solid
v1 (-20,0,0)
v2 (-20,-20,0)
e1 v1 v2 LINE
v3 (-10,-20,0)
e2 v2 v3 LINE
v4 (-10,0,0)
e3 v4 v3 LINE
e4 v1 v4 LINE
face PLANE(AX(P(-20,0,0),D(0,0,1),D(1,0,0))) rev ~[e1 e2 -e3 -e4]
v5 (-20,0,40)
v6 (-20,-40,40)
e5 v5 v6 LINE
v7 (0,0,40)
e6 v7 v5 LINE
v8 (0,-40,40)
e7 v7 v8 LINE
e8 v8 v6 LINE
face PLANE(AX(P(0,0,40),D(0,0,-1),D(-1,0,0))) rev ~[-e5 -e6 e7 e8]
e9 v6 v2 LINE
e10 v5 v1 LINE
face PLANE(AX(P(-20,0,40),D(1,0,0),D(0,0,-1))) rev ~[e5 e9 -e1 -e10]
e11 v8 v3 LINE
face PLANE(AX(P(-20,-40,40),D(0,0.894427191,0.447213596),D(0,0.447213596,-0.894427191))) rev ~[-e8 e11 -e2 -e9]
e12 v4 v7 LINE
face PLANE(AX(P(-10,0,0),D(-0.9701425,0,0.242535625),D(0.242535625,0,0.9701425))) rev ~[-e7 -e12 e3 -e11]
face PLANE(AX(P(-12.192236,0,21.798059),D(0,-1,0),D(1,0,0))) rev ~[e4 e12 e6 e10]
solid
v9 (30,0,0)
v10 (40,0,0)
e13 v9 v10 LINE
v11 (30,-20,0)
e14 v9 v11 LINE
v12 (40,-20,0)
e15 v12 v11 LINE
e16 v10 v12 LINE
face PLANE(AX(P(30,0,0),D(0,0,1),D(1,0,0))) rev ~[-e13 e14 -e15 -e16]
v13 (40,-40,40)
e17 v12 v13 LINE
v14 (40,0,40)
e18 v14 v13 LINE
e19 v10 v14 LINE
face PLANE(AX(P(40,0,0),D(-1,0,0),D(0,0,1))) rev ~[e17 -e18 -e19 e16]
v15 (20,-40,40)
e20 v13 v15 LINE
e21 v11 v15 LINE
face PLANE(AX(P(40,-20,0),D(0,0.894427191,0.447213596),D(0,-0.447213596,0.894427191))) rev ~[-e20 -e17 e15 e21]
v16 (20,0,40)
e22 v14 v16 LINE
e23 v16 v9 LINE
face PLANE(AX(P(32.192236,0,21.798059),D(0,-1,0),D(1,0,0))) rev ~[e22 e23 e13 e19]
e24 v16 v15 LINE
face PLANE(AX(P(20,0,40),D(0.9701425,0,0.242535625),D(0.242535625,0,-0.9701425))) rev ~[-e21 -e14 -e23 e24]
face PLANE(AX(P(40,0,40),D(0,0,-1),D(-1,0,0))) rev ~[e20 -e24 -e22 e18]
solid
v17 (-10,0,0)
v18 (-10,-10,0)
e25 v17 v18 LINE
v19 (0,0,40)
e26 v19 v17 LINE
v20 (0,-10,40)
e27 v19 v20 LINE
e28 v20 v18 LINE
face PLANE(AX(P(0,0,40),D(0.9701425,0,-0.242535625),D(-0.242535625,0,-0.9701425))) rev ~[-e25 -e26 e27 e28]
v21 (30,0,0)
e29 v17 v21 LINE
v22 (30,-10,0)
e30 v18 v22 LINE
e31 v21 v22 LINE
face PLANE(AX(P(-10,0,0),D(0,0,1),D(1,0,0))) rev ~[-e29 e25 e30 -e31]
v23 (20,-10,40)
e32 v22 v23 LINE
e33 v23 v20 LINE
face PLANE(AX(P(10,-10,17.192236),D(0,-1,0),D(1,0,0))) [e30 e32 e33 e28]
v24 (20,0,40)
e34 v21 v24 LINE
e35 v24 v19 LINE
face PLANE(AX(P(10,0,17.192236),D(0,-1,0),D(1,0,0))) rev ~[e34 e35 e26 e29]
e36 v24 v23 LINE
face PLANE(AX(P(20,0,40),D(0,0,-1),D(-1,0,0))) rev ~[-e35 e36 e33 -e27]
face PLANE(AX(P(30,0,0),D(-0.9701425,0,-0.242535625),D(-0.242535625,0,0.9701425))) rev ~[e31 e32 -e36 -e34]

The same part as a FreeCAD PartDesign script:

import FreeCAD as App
import Part
import Sketcher

V = App.Vector
Q = App.Units.Quantity


def add_polygon(sketch, points):
    """Adds a closed chain of lines whose ends are joined by coincident constraints."""
    first, n = sketch.GeometryCount, len(points)
    for a, b in zip(points, points[1:] + points[:1]):
        sketch.addGeometry(Part.LineSegment(App.Vector(*a, 0), App.Vector(*b, 0)), False)
    for i in range(n):
        sketch.addConstraint(Sketcher.Constraint("Coincident", first + i, 2, first + (i + 1) % n, 1))

doc = App.newDocument("Part")
params = doc.addObject("Spreadsheet::Sheet", "Params")
for row, (alias, value) in enumerate([
    ("sketch1_width", "10 mm"),
    ("sketch1_width2", "20 mm"),
    ("sketch1_height", "40 mm"),
    ("pad1_length", "40 mm"),
    ("sketch2_width", "20 mm"),
    ("sketch2_height", "40 mm"),
    ("pocket1_length", "25 mm"),
    ("sketch3_width", "10 mm"),
    ("sketch3_width2", "20 mm"),
    ("sketch3_height", "40 mm"),
    ("pad2_length", "40 mm"),
    ("sketch4_width", "20 mm"),
    ("sketch4_height", "40 mm"),
    ("pocket2_length", "25 mm"),
    ("sketch5_width", "40 mm"),
    ("sketch5_width2", "20 mm"),
    ("pad3_length", "10 mm"),
], start=1):
    params.set(f"A{row}", alias)
    params.set(f"B{row}", "=" + value)
    params.setAlias(f"B{row}", alias)

body = doc.addObject("PartDesign::Body", "Body")

# Sketch on XZ plane
sketch1 = body.newObject("Sketcher::SketchObject", "Sketch")
sketch1.AttachmentSupport = (doc.getObject("XZ_Plane"), [""])
sketch1.MapMode = "FlatFace"
add_polygon(sketch1, [(-20, 40), (-20, 0), (-10, 0), (0, 40)])  # lines 0-3
sketch1.addConstraint([
    Sketcher.Constraint("Vertical", 0),
    Sketcher.Constraint("Horizontal", 1),
    Sketcher.Constraint("Horizontal", 3),
    Sketcher.Constraint("PointOnObject", 0, 2, -1),
    Sketcher.Constraint("PointOnObject", 2, 2, -2),
    Sketcher.Constraint("DistanceX", 1, 1, 1, 2, Q("10 mm")),
    Sketcher.Constraint("DistanceX", 3, 2, 3, 1, Q("20 mm")),
    Sketcher.Constraint("DistanceY", 0, 2, 0, 1, Q("40 mm")),
])
sketch1.setExpression("Constraints[9]", "Params.sketch1_width")
sketch1.setExpression("Constraints[10]", "Params.sketch1_width2")
sketch1.setExpression("Constraints[11]", "Params.sketch1_height")
pad1 = body.newObject("PartDesign::Pad", "Pad")
pad1.Profile = sketch1
pad1.setExpression("Length", "Params.pad1_length")

# Sketch on YZ plane
sketch2 = body.newObject("Sketcher::SketchObject", "Sketch001")
sketch2.AttachmentSupport = (doc.getObject("YZ_Plane"), [""])
sketch2.MapMode = "FlatFace"
sketch2.AttachmentOffset = App.Placement(V(0, 0, -20), App.Rotation())
add_polygon(sketch2, [(-40, 40), (-20, 0), (-40, 0)])  # lines 0-2
sketch2.addConstraint([
    Sketcher.Constraint("Horizontal", 1),
    Sketcher.Constraint("Vertical", 2),
    Sketcher.Constraint("PointOnObject", 0, 2, -1),
    Sketcher.Constraint("DistanceX", 1, 2, 1, 1, Q("20 mm")),
    Sketcher.Constraint("DistanceY", 2, 1, 2, 2, Q("40 mm")),
    Sketcher.Constraint("DistanceX", 0, 2, -1, 1, Q("20 mm")),
])
sketch2.setExpression("Constraints[6]", "Params.sketch2_width")
sketch2.setExpression("Constraints[7]", "Params.sketch2_height")
pocket1 = body.newObject("PartDesign::Pocket", "Pocket")
pocket1.Profile = sketch2
pocket1.setExpression("Length", "Params.pocket1_length")
pocket1.Reversed = True
body2 = doc.addObject("PartDesign::Body", "Body001")

# Sketch on XZ plane
sketch3 = body2.newObject("Sketcher::SketchObject", "Sketch002")
sketch3.AttachmentSupport = (doc.getObject("XZ_Plane001"), [""])
sketch3.MapMode = "FlatFace"
add_polygon(sketch3, [(20, 40), (30, 0), (40, 0), (40, 40)])  # lines 0-3
sketch3.addConstraint([
    Sketcher.Constraint("Horizontal", 1),
    Sketcher.Constraint("Vertical", 2),
    Sketcher.Constraint("Horizontal", 3),
    Sketcher.Constraint("PointOnObject", 0, 2, -1),
    Sketcher.Constraint("DistanceX", 1, 1, 1, 2, Q("10 mm")),
    Sketcher.Constraint("DistanceX", 3, 2, 3, 1, Q("20 mm")),
    Sketcher.Constraint("DistanceY", 2, 1, 2, 2, Q("40 mm")),
    Sketcher.Constraint("DistanceX", -1, 1, 0, 2, Q("30 mm")),
])
sketch3.setExpression("Constraints[8]", "Params.sketch3_width")
sketch3.setExpression("Constraints[9]", "Params.sketch3_width2")
sketch3.setExpression("Constraints[10]", "Params.sketch3_height")
pad2 = body2.newObject("PartDesign::Pad", "Pad001")
pad2.Profile = sketch3
pad2.setExpression("Length", "Params.pad2_length")

# Sketch on YZ plane
sketch4 = body2.newObject("Sketcher::SketchObject", "Sketch003")
sketch4.AttachmentSupport = (doc.getObject("YZ_Plane001"), [""])
sketch4.MapMode = "FlatFace"
sketch4.AttachmentOffset = App.Placement(V(0, 0, 40), App.Rotation())
add_polygon(sketch4, [(-20, 0), (-40, 40), (-40, 0)])  # lines 0-2
sketch4.addConstraint([
    Sketcher.Constraint("Vertical", 1),
    Sketcher.Constraint("Horizontal", 2),
    Sketcher.Constraint("PointOnObject", 1, 2, -1),
    Sketcher.Constraint("DistanceX", 2, 1, 2, 2, Q("20 mm")),
    Sketcher.Constraint("DistanceY", 1, 2, 1, 1, Q("40 mm")),
    Sketcher.Constraint("DistanceX", 0, 2, -1, 1, Q("40 mm")),
])
sketch4.setExpression("Constraints[6]", "Params.sketch4_width")
sketch4.setExpression("Constraints[7]", "Params.sketch4_height")
pocket2 = body2.newObject("PartDesign::Pocket", "Pocket001")
pocket2.Profile = sketch4
pocket2.setExpression("Length", "Params.pocket2_length")
body3 = doc.addObject("PartDesign::Body", "Body002")

# Sketch on XZ plane
sketch5 = body3.newObject("Sketcher::SketchObject", "Sketch004")
sketch5.AttachmentSupport = (doc.getObject("XZ_Plane002"), [""])
sketch5.MapMode = "FlatFace"
add_polygon(sketch5, [(0, 40), (-10, 0), (30, 0), (20, 40)])  # lines 0-3
sketch5.addConstraint([
    Sketcher.Constraint("Horizontal", 1),
    Sketcher.Constraint("Horizontal", 3),
    Sketcher.Constraint("PointOnObject", 0, 2, -1),
    Sketcher.Constraint("PointOnObject", 3, 2, -2),
    Sketcher.Constraint("Equal", 0, 2),
    Sketcher.Constraint("DistanceX", 1, 1, 1, 2, Q("40 mm")),
    Sketcher.Constraint("DistanceX", 3, 2, 3, 1, Q("20 mm")),
    Sketcher.Constraint("DistanceY", -1, 1, 2, 2, Q("40 mm")),
])
sketch5.setExpression("Constraints[9]", "Params.sketch5_width")
sketch5.setExpression("Constraints[10]", "Params.sketch5_width2")
pad3 = body3.newObject("PartDesign::Pad", "Pad002")
pad3.Profile = sketch5
pad3.setExpression("Length", "Params.pad3_length")

doc.recompute()
